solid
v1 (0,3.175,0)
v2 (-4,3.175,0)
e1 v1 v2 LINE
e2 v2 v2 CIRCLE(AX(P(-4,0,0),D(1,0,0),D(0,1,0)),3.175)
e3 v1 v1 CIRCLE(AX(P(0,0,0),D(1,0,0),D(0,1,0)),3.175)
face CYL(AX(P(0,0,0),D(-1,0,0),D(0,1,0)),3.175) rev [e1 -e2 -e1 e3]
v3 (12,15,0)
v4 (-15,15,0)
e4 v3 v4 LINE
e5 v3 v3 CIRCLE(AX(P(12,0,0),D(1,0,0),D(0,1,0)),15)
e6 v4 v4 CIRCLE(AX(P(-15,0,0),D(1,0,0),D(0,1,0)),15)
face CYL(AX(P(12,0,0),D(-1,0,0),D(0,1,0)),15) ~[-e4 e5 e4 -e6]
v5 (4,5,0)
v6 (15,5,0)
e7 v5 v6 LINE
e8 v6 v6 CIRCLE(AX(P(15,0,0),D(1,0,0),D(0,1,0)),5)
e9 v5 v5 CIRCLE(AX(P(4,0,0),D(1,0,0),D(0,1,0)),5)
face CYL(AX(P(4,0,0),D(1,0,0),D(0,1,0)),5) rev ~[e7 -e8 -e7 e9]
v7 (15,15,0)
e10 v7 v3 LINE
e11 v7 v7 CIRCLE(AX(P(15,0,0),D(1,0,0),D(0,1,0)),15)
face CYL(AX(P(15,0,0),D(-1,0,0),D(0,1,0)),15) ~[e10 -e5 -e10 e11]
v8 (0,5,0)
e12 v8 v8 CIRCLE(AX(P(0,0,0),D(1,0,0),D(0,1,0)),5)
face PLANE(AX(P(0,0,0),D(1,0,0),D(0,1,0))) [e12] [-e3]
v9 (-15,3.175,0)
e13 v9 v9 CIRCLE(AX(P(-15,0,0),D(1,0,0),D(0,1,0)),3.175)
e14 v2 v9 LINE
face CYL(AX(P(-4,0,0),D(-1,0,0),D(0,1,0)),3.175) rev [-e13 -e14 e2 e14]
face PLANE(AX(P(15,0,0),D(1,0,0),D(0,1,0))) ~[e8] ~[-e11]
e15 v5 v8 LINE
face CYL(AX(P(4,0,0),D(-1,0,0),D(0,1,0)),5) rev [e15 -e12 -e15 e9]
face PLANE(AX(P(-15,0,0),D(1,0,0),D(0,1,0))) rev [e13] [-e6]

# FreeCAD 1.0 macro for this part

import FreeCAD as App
import Part
import Sketcher
Q = App.Units.Quantity


def add_polygon(sketch, points):
    """Adds a closed chain of lines whose ends are joined by coincident constraints."""
    first, n = sketch.GeometryCount, len(points)
    for a, b in zip(points, points[1:] + points[:1]):
        sketch.addGeometry(Part.LineSegment(App.Vector(*a, 0), App.Vector(*b, 0)), False)
    for i in range(n):
        sketch.addConstraint(Sketcher.Constraint("Coincident", first + i, 2, first + (i + 1) % n, 1))

doc = App.newDocument("Part")
body = doc.addObject("PartDesign::Body", "Body")

sketch1 = body.newObject("Sketcher::SketchObject", "Sketch")
sketch1.AttachmentSupport = (doc.getObject("XY_Plane"), [""])
sketch1.MapMode = "FlatFace"
add_polygon(sketch1, [(15, 5), (15, 15), (-15, 15), (-15, 3.175), (0, 3.175), (0, 5)])
sketch1.addConstraint([
    Sketcher.Constraint("Vertical", 0),
    Sketcher.Constraint("Horizontal", 1),
    Sketcher.Constraint("Vertical", 2),
    Sketcher.Constraint("Horizontal", 3),
    Sketcher.Constraint("Vertical", 4),
    Sketcher.Constraint("Horizontal", 5),
    Sketcher.Constraint("PointOnObject", 3, 2, -2),
    Sketcher.Constraint("Equal", 3, 5),
    Sketcher.Constraint("DistanceX", 1, 2, 1, 1, Q("30 mm")),
    Sketcher.Constraint("DistanceY", 0, 1, 0, 2, Q("10 mm")),
    Sketcher.Constraint("DistanceY", -1, 1, 0, 2, Q("15 mm")),
    Sketcher.Constraint("DistanceY", 2, 2, 2, 1, Q("11.825 mm")),
])
revolution = body.newObject("PartDesign::Revolution", "Revolution")
revolution.Profile = sketch1
revolution.ReferenceAxis = (sketch1, ["H_Axis"])
revolution.Angle = 360

doc.recompute()
